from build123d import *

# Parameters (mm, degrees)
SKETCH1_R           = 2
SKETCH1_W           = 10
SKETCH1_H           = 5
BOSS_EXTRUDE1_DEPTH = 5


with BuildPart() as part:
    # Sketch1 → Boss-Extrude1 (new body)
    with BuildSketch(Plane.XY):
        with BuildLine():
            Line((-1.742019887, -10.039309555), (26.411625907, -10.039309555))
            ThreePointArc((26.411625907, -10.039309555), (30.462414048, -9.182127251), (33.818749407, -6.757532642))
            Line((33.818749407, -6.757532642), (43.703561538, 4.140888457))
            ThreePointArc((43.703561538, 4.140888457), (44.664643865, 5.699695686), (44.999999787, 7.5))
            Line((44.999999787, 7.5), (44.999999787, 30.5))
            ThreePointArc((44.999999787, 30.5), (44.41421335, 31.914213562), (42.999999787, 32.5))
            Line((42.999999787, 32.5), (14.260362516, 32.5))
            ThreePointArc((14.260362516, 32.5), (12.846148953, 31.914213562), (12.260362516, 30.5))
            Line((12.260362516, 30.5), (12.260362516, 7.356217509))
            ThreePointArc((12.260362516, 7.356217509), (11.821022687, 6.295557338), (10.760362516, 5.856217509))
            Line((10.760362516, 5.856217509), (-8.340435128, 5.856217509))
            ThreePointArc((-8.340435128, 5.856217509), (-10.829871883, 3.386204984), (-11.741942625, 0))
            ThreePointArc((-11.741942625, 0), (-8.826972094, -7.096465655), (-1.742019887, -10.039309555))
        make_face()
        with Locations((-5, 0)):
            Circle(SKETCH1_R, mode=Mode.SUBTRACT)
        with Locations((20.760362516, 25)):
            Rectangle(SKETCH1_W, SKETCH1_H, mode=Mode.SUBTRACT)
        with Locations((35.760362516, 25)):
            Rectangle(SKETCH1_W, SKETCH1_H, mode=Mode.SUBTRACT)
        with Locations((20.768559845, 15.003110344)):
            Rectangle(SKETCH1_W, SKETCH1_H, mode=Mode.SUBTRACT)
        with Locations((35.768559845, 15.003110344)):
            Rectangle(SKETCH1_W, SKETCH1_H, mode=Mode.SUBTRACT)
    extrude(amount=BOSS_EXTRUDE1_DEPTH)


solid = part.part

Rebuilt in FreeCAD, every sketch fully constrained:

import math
import FreeCAD as App
import Part
import Sketcher

V = App.Vector

doc = App.newDocument("Part")
body = doc.addObject("PartDesign::Body", "Body")

# Sketch on XY plane
sketch1 = body.newObject("Sketcher::SketchObject", "Sketch")
sketch1.AttachmentSupport = (doc.getObject("XY_Plane"), [""])
sketch1.MapMode = "FlatFace"
sketch1.addGeometry([
    Part.LineSegment(V(-1.74202, -10.03931, 0), V(26.411626, -10.03931, 0)),  # 0
    Part.ArcOfCircle(Part.Circle(V(26.411626, -0.03931, 0), V(0, 0, 1), 10), math.radians(-90), math.radians(-42.207868)),  # 1
    Part.LineSegment(V(33.818749, -6.757533, 0), V(43.703562, 4.140888, 0)),  # 2
    Part.ArcOfCircle(Part.Circle(V(40, 7.5, 0), V(0, 0, 1), 5), math.radians(-42.207868), math.radians(0)),  # 3
    Part.LineSegment(V(45, 7.5, 0), V(45, 30.5, 0)),  # 4
    Part.ArcOfCircle(Part.Circle(V(43, 30.5, 0), V(0, 0, 1), 2), math.radians(0), math.radians(90)),  # 5
    Part.LineSegment(V(43, 32.5, 0), V(14.260363, 32.5, 0)),  # 6
    Part.ArcOfCircle(Part.Circle(V(14.260363, 30.5, 0), V(0, 0, 1), 2), math.radians(90), math.radians(180)),  # 7
    Part.LineSegment(V(12.260363, 30.5, 0), V(12.260363, 7.356218, 0)),  # 8
    Part.ArcOfCircle(Part.Circle(V(10.760363, 7.356218, 0), V(0, 0, 1), 1.5), math.radians(-90), math.radians(0)),  # 9
    Part.LineSegment(V(10.760363, 5.856218, 0), V(-8.340435, 5.856218, 0)),  # 10
    Part.ArcOfCircle(Part.Circle(V(-5, 0, 0), V(0, 0, 1), 6.741943), math.radians(119.700795), math.radians(180)),  # 11
    Part.ArcOfCircle(Part.Circle(V(-1.74202, -0.03931, 0), V(0, 0, 1), 10), math.radians(179.774772), math.radians(270)),  # 12
    Part.Circle(V(-5, 0, 0), V(0, 0, 1), 2),  # 13
    Part.LineSegment(V(25.76856, 12.50311, 0), V(15.76856, 12.50311, 0)),  # 14
    Part.LineSegment(V(15.76856, 12.50311, 0), V(15.76856, 17.50311, 0)),  # 15
    Part.LineSegment(V(15.76856, 17.50311, 0), V(25.76856, 17.50311, 0)),  # 16
    Part.LineSegment(V(25.76856, 17.50311, 0), V(25.76856, 12.50311, 0)),  # 17
    Part.LineSegment(V(40.76856, 12.50311, 0), V(30.76856, 12.50311, 0)),  # 18
    Part.LineSegment(V(30.76856, 12.50311, 0), V(30.76856, 17.50311, 0)),  # 19
    Part.LineSegment(V(30.76856, 17.50311, 0), V(40.76856, 17.50311, 0)),  # 20
    Part.LineSegment(V(40.76856, 17.50311, 0), V(40.76856, 12.50311, 0)),  # 21
    Part.LineSegment(V(25.760363, 22.5, 0), V(15.760363, 22.5, 0)),  # 22
    Part.LineSegment(V(15.760363, 22.5, 0), V(15.760363, 27.5, 0)),  # 23
    Part.LineSegment(V(15.760363, 27.5, 0), V(25.760363, 27.5, 0)),  # 24
    Part.LineSegment(V(25.760363, 27.5, 0), V(25.760363, 22.5, 0)),  # 25
    Part.LineSegment(V(40.760363, 22.5, 0), V(30.760363, 22.5, 0)),  # 26
    Part.LineSegment(V(30.760363, 22.5, 0), V(30.760363, 27.5, 0)),  # 27
    Part.LineSegment(V(30.760363, 27.5, 0), V(40.760363, 27.5, 0)),  # 28
    Part.LineSegment(V(40.760363, 27.5, 0), V(40.760363, 22.5, 0)),  # 29
], False)
sketch1.addConstraint([
    Sketcher.Constraint("Tangent", 0, 2, 1, 1),
    Sketcher.Constraint("Tangent", 1, 2, 2, 1),
    Sketcher.Constraint("Tangent", 2, 2, 3, 1),
    Sketcher.Constraint("Tangent", 3, 2, 4, 1),
    Sketcher.Constraint("Tangent", 4, 2, 5, 1),
    Sketcher.Constraint("Tangent", 5, 2, 6, 1),
    Sketcher.Constraint("Tangent", 6, 2, 7, 1),
    Sketcher.Constraint("Tangent", 7, 2, 8, 1),
    Sketcher.Constraint("Tangent", 8, 2, 9, 2),
    Sketcher.Constraint("Tangent", 9, 1, 10, 1),
    Sketcher.Constraint("Coincident", 10, 2, 11, 1),
    Sketcher.Constraint("Coincident", 11, 2, 12, 1),
    Sketcher.Constraint("Tangent", 12, 2, 0, 1),
    Sketcher.Constraint("Coincident", 14, 2, 15, 1),
    Sketcher.Constraint("Coincident", 15, 2, 16, 1),
    Sketcher.Constraint("Coincident", 16, 2, 17, 1),
    Sketcher.Constraint("Coincident", 17, 2, 14, 1),
    Sketcher.Constraint("Coincident", 18, 2, 19, 1),
    Sketcher.Constraint("Coincident", 19, 2, 20, 1),
    Sketcher.Constraint("Coincident", 20, 2, 21, 1),
    Sketcher.Constraint("Coincident", 21, 2, 18, 1),
    Sketcher.Constraint("Coincident", 22, 2, 23, 1),
    Sketcher.Constraint("Coincident", 23, 2, 24, 1),
    Sketcher.Constraint("Coincident", 24, 2, 25, 1),
    Sketcher.Constraint("Coincident", 25, 2, 22, 1),
    Sketcher.Constraint("Coincident", 26, 2, 27, 1),
    Sketcher.Constraint("Coincident", 27, 2, 28, 1),
    Sketcher.Constraint("Coincident", 28, 2, 29, 1),
    Sketcher.Constraint("Coincident", 29, 2, 26, 1),
    Sketcher.Constraint("Horizontal", 0),
    Sketcher.Constraint("Vertical", 4),
    Sketcher.Constraint("Horizontal", 6),
    Sketcher.Constraint("Vertical", 8),
    Sketcher.Constraint("Horizontal", 10),
    Sketcher.Constraint("Horizontal", 14),
    Sketcher.Constraint("Vertical", 15),
    Sketcher.Constraint("Horizontal", 16),
    Sketcher.Constraint("Vertical", 17),
    Sketcher.Constraint("Horizontal", 18),
    Sketcher.Constraint("Vertical", 19),
    Sketcher.Constraint("Horizontal", 20),
    Sketcher.Constraint("Vertical", 21),
    Sketcher.Constraint("Horizontal", 22),
    Sketcher.Constraint("Vertical", 23),
    Sketcher.Constraint("Horizontal", 24),
    Sketcher.Constraint("Vertical", 25),
    Sketcher.Constraint("Horizontal", 26),
    Sketcher.Constraint("Vertical", 27),
    Sketcher.Constraint("Horizontal", 28),
    Sketcher.Constraint("Vertical", 29),
    Sketcher.Constraint("Coincident", 13, 3, 11, 3),
    Sketcher.Constraint("Equal", 5, 7),
    Sketcher.Constraint("Equal", 1, 12),
    Sketcher.Constraint("Equal", 7, 13),
    Sketcher.Constraint("PointOnObject", 11, 3, -1),
    Sketcher.Constraint("PointOnObject", 11, 2, -1),
    Sketcher.Constraint("Horizontal", 17, 2, 18, 2),
    Sketcher.Constraint("Horizontal", 16, 2, 19, 2),
    Sketcher.Constraint("Horizontal", 25, 2, 26, 2),
    Sketcher.Constraint("Horizontal", 24, 2, 27, 2),
    Sketcher.Constraint("Equal", 16, 18),
    Sketcher.Constraint("Equal", 20, 22),
    Sketcher.Constraint("Equal", 24, 26),
    Sketcher.Constraint("Equal", 21, 23),
    Sketcher.Constraint("Diameter", 13, 4.0),
    Sketcher.Constraint("Radius", 1, 10.0),
    Sketcher.Constraint("Radius", 3, 5.0),
    Sketcher.Constraint("Radius", 9, 1.5),
    Sketcher.Constraint("DistanceX", 14, 2, 14, 1, 10.0),
    Sketcher.Constraint("DistanceY", 4, 1, 4, 2, 23.0),
    Sketcher.Constraint("DistanceY", 15, 1, 15, 2, 5.0),
    Sketcher.Constraint("DistanceX", -1, 1, 3, 3, 40.0),
    Sketcher.Constraint("DistanceX", 11, 3, -1, 1, 5.0),
    Sketcher.Constraint("DistanceX", 17, 2, 18, 2, 5.0),
    Sketcher.Constraint("DistanceY", 22, 2, 7, 3, 8.0),
    Sketcher.Constraint("DistanceX", 25, 2, 26, 2, 5.0),
    Sketcher.Constraint("DistanceY", -1, 1, 3, 3, 7.5),
    Sketcher.Constraint("DistanceX", 7, 3, 22, 2, 1.5),
    Sketcher.Constraint("Radius", 11, 6.741943),
    Sketcher.Constraint("DistanceX", 21, 2, 2, 2, 2.935002),
    Sketcher.Constraint("DistanceY", 1, 3, 2, 2, 4.180198),
    Sketcher.Constraint("DistanceX", 0, 1, 0, 2, 28.153646),
    Sketcher.Constraint("DistanceX", 6, 2, 6, 1, 28.739637),
    Sketcher.Constraint("DistanceX", 10, 2, 10, 1, 19.100798),
    Sketcher.Constraint("DistanceY", -1, 1, 14, 2, 12.50311),
])
pad1 = body.newObject("PartDesign::Pad", "Pad")
pad1.Profile = sketch1
pad1.Length = 5

doc.recompute()
